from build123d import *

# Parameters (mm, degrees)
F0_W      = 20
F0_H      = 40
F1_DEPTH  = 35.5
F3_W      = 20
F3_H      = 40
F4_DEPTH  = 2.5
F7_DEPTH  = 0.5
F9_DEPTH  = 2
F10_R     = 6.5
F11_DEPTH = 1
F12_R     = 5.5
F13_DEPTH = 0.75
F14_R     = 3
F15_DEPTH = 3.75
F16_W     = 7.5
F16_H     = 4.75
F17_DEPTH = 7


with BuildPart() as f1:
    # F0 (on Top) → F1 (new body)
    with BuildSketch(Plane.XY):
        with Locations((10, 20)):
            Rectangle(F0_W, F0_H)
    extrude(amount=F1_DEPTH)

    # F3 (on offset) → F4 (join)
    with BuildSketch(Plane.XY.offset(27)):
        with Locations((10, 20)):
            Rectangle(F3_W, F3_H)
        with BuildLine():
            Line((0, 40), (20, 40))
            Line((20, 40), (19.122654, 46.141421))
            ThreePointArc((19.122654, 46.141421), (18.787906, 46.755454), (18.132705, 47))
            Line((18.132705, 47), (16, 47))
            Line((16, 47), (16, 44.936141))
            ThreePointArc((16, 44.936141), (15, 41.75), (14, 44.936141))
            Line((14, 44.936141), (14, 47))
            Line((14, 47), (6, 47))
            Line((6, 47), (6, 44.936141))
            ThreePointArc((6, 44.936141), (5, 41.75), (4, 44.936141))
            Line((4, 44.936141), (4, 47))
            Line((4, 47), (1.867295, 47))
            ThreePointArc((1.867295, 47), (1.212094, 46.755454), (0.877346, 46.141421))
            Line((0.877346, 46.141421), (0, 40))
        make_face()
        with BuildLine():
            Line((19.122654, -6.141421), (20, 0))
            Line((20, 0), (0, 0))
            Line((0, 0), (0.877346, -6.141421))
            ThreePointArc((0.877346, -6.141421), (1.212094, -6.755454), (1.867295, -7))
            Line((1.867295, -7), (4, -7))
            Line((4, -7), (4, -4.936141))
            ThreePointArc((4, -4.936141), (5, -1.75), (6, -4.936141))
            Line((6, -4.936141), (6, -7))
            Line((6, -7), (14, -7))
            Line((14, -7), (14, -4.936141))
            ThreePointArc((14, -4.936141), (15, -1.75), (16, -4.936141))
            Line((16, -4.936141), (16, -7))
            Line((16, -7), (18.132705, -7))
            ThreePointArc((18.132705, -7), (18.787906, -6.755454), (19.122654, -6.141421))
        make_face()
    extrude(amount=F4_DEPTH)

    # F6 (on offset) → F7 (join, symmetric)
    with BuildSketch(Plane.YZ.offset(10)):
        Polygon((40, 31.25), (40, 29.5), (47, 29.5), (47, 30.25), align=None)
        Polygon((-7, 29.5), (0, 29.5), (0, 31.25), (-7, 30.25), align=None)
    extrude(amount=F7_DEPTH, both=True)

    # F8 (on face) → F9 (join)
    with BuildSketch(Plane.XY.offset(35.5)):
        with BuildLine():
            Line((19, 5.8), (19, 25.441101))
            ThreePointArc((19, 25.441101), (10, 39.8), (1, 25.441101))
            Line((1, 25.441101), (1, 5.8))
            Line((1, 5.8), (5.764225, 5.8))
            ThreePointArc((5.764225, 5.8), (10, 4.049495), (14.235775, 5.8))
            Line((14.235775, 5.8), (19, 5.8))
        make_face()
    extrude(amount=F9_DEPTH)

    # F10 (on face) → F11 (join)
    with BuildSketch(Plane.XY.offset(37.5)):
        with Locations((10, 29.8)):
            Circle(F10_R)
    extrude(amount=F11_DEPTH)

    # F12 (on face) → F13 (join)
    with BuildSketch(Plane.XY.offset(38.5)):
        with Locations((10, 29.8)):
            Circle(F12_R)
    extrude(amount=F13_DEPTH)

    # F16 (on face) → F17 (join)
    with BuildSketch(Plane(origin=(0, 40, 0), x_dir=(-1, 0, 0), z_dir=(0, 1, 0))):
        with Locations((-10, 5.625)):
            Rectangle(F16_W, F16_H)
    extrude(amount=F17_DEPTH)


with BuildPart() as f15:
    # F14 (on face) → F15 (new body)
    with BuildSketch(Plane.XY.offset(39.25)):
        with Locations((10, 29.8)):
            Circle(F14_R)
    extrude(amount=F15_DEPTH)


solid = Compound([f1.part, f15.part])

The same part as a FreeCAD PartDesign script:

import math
import FreeCAD as App
import Part
import Sketcher
from FreeCAD import Vector
Q = App.Units.Quantity

doc = App.newDocument("Part")
body = doc.addObject("PartDesign::Body", "Body")

sketch1 = doc.addObject("Sketcher::SketchObject", "Sketch")
body.addObject(sketch1)
sketch1.AttachmentSupport = (doc.XY_Plane, [""])
sketch1.MapMode = "FlatFace"
sketch1.addGeometry([
    Part.LineSegment(Vector(0, 40, 0), Vector(0, 0, 0)),
    Part.LineSegment(Vector(0, 0, 0), Vector(20, 0, 0)),
    Part.LineSegment(Vector(20, 0, 0), Vector(20, 40, 0)),
    Part.LineSegment(Vector(20, 40, 0), Vector(0, 40, 0)),
], False)
sketch1.addConstraint([
    Sketcher.Constraint("Coincident", 0, 2, 1, 1),
    Sketcher.Constraint("Coincident", 1, 2, 2, 1),
    Sketcher.Constraint("Coincident", 2, 2, 3, 1),
    Sketcher.Constraint("Coincident", 3, 2, 0, 1),
    Sketcher.Constraint("Vertical", 0),
    Sketcher.Constraint("Horizontal", 1),
    Sketcher.Constraint("Vertical", 2),
    Sketcher.Constraint("Horizontal", 3),
    Sketcher.Constraint("Coincident", 0, 2, -1, 1),
    Sketcher.Constraint("DistanceX", 1, 1, 1, 2, Q("20 mm")),
    Sketcher.Constraint("DistanceY", 0, 2, 0, 1, Q("40 mm")),
])
pad1 = doc.addObject("PartDesign::Pad", "Pad")
body.addObject(pad1)
pad1.Profile = sketch1
pad1.Length = 35.5

sketch2 = doc.addObject("Sketcher::SketchObject", "Sketch001")
body.addObject(sketch2)
sketch2.AttachmentSupport = (doc.XY_Plane, [""])
sketch2.MapMode = "FlatFace"
sketch2.AttachmentOffset = App.Placement(Vector(0, 0, 27), App.Rotation())
sketch2.addGeometry([
    Part.LineSegment(Vector(0, 40, 0), Vector(0, 0, 0)),
    Part.LineSegment(Vector(0, 0, 0), Vector(0.9, -6.1, 0)),
    Part.ArcOfCircle(Part.Circle(Vector(1.9, -6, 0), Vector(0, 0, 1), 1), math.radians(-172), math.radians(-90)),
    Part.LineSegment(Vector(1.9, -7, 0), Vector(4, -7, 0)),
    Part.LineSegment(Vector(4, -7, 0), Vector(4, -4.9, 0)),
    Part.ArcOfCircle(Part.Circle(Vector(5, -3.5, 0), Vector(0, 0, 1), 1.8), math.radians(-55), math.radians(235)),
    Part.LineSegment(Vector(6, -4.9, 0), Vector(6, -7, 0)),
    Part.LineSegment(Vector(6, -7, 0), Vector(14, -7, 0)),
    Part.LineSegment(Vector(14, -7, 0), Vector(14, -4.9, 0)),
    Part.ArcOfCircle(Part.Circle(Vector(15, -3.5, 0), Vector(0, 0, 1), 1.8), math.radians(-55), math.radians(235)),
    Part.LineSegment(Vector(16, -4.9, 0), Vector(16, -7, 0)),
    Part.LineSegment(Vector(16, -7, 0), Vector(18.1, -7, 0)),
    Part.ArcOfCircle(Part.Circle(Vector(18.1, -6, 0), Vector(0, 0, 1), 1), math.radians(-90), math.radians(-8)),
    Part.LineSegment(Vector(19.1, -6.1, 0), Vector(20, 0, 0)),
    Part.LineSegment(Vector(20, 0, 0), Vector(20, 40, 0)),
    Part.LineSegment(Vector(20, 40, 0), Vector(19.1, 46.1, 0)),
    Part.ArcOfCircle(Part.Circle(Vector(18.1, 46, 0), Vector(0, 0, 1), 1), math.radians(8), math.radians(90)),
    Part.LineSegment(Vector(18.1, 47, 0), Vector(16, 47, 0)),
    Part.LineSegment(Vector(16, 47, 0), Vector(16, 44.9, 0)),
    Part.ArcOfCircle(Part.Circle(Vector(15, 43.5, 0), Vector(0, 0, 1), 1.8), math.radians(125), math.radians(415)),
    Part.LineSegment(Vector(14, 44.9, 0), Vector(14, 47, 0)),
    Part.LineSegment(Vector(14, 47, 0), Vector(6, 47, 0)),
    Part.LineSegment(Vector(6, 47, 0), Vector(6, 44.9, 0)),
    Part.ArcOfCircle(Part.Circle(Vector(5, 43.5, 0), Vector(0, 0, 1), 1.8), math.radians(125), math.radians(415)),
    Part.LineSegment(Vector(4, 44.9, 0), Vector(4, 47, 0)),
    Part.LineSegment(Vector(4, 47, 0), Vector(1.9, 47, 0)),
    Part.ArcOfCircle(Part.Circle(Vector(1.9, 46, 0), Vector(0, 0, 1), 1), math.radians(90), math.radians(172)),
    Part.LineSegment(Vector(0.9, 46.1, 0), Vector(0, 40, 0)),
], False)
sketch2.addConstraint([
    Sketcher.Constraint("Coincident", 0, 2, 1, 1),
    Sketcher.Constraint("Tangent", 1, 2, 2, 1),
    Sketcher.Constraint("Tangent", 2, 2, 3, 1),
    Sketcher.Constraint("Coincident", 3, 2, 4, 1),
    Sketcher.Constraint("Coincident", 4, 2, 5, 2),
    Sketcher.Constraint("Coincident", 5, 1, 6, 1),
    Sketcher.Constraint("Coincident", 6, 2, 7, 1),
    Sketcher.Constraint("Coincident", 7, 2, 8, 1),
    Sketcher.Constraint("Coincident", 8, 2, 9, 2),
    Sketcher.Constraint("Coincident", 9, 1, 10, 1),
    Sketcher.Constraint("Coincident", 10, 2, 11, 1),
    Sketcher.Constraint("Tangent", 11, 2, 12, 1),
    Sketcher.Constraint("Tangent", 12, 2, 13, 1),
    Sketcher.Constraint("Coincident", 13, 2, 14, 1),
    Sketcher.Constraint("Coincident", 14, 2, 15, 1),
    Sketcher.Constraint("Tangent", 15, 2, 16, 1),
    Sketcher.Constraint("Tangent", 16, 2, 17, 1),
    Sketcher.Constraint("Coincident", 17, 2, 18, 1),
    Sketcher.Constraint("Coincident", 18, 2, 19, 2),
    Sketcher.Constraint("Coincident", 19, 1, 20, 1),
    Sketcher.Constraint("Coincident", 20, 2, 21, 1),
    Sketcher.Constraint("Coincident", 21, 2, 22, 1),
    Sketcher.Constraint("Coincident", 22, 2, 23, 2),
    Sketcher.Constraint("Coincident", 23, 1, 24, 1),
    Sketcher.Constraint("Coincident", 24, 2, 25, 1),
    Sketcher.Constraint("Tangent", 25, 2, 26, 1),
    Sketcher.Constraint("Tangent", 26, 2, 27, 1),
    Sketcher.Constraint("Coincident", 27, 2, 0, 1),
    Sketcher.Constraint("Vertical", 0),
    Sketcher.Constraint("Horizontal", 3),
    Sketcher.Constraint("Vertical", 4),
    Sketcher.Constraint("Vertical", 6),
    Sketcher.Constraint("Horizontal", 7),
    Sketcher.Constraint("Vertical", 8),
    Sketcher.Constraint("Vertical", 10),
    Sketcher.Constraint("Horizontal", 11),
    Sketcher.Constraint("Vertical", 14),
    Sketcher.Constraint("Horizontal", 17),
    Sketcher.Constraint("Vertical", 18),
    Sketcher.Constraint("Vertical", 20),
    Sketcher.Constraint("Horizontal", 21),
    Sketcher.Constraint("Vertical", 22),
    Sketcher.Constraint("Vertical", 24),
    Sketcher.Constraint("Horizontal", 25),
    Sketcher.Constraint("Coincident", 0, 2, -1, 1),
    Sketcher.Constraint("Equal", 5, 9),
    Sketcher.Constraint("Equal", 2, 12),
    Sketcher.Constraint("Equal", 12, 16),
    Sketcher.Constraint("Equal", 9, 19),
    Sketcher.Constraint("Equal", 19, 23),
    Sketcher.Constraint("Equal", 16, 26),
    Sketcher.Constraint("PointOnObject", 13, 2, -1),
    Sketcher.Constraint("Parallel", 1, 15),
    Sketcher.Constraint("Parallel", 13, 27),
    Sketcher.Constraint("Horizontal", 5, 3, 9, 3),
    Sketcher.Constraint("Horizontal", 2, 3, 12, 3),
    Sketcher.Constraint("Horizontal", 19, 3, 23, 3),
    Sketcher.Constraint("Horizontal", 16, 3, 26, 3),
    Sketcher.Constraint("Horizontal", 4, 2, 5, 1),
    Sketcher.Constraint("Horizontal", 3, 2, 6, 2),
    Sketcher.Constraint("Horizontal", 5, 1, 8, 2),
    Sketcher.Constraint("Horizontal", 8, 2, 9, 1),
    Sketcher.Constraint("Horizontal", 1, 2, 12, 2),
    Sketcher.Constraint("Horizontal", 18, 2, 19, 1),
    Sketcher.Constraint("Horizontal", 17, 2, 20, 2),
    Sketcher.Constraint("Horizontal", 19, 1, 22, 2),
    Sketcher.Constraint("Horizontal", 22, 2, 23, 1),
    Sketcher.Constraint("Horizontal", 14, 2, 27, 2),
    Sketcher.Constraint("Vertical", 12, 3, 16, 3),
    Sketcher.Constraint("Vertical", 9, 3, 19, 3),
    Sketcher.Constraint("Vertical", 5, 3, 23, 3),
    Sketcher.Constraint("Vertical", 10, 2, 17, 2),
    Sketcher.Constraint("Equal", 3, 11),
    Sketcher.Constraint("Equal", 10, 18),
    Sketcher.Constraint("Radius", 2, Q("1 mm")),
    Sketcher.Constraint("DistanceX", 7, 1, 7, 2, Q("8 mm")),
    Sketcher.Constraint("DistanceY", 0, 2, 0, 1, Q("40 mm")),
    Sketcher.Constraint("Radius", 5, Q("1.75 mm")),
    Sketcher.Constraint("DistanceY", 2, 3, -1, 1, Q("6 mm")),
    Sketcher.Constraint("DistanceX", -1, 1, 5, 3, Q("5 mm")),
    Sketcher.Constraint("DistanceX", -1, 1, 9, 3, Q("15 mm")),
    Sketcher.Constraint("DistanceY", 9, 3, 19, 3, Q("47 mm")),
    Sketcher.Constraint("DistanceX", 3, 1, 3, 2, Q("2.132705 mm")),
])
pad2 = doc.addObject("PartDesign::Pad", "Pad001")
body.addObject(pad2)
pad2.Profile = sketch2
pad2.Length = 2.5

sketch3 = doc.addObject("Sketcher::SketchObject", "Sketch002")
body.addObject(sketch3)
sketch3.AttachmentSupport = (doc.YZ_Plane, [""])
sketch3.MapMode = "FlatFace"
sketch3.AttachmentOffset = App.Placement(Vector(0, 0, 10), App.Rotation())
sketch3.addGeometry([
    Part.LineSegment(Vector(40, 31.2, 0), Vector(40, 29.5, 0)),
    Part.LineSegment(Vector(40, 29.5, 0), Vector(47, 29.5, 0)),
    Part.LineSegment(Vector(47, 29.5, 0), Vector(47, 30.2, 0)),
    Part.LineSegment(Vector(47, 30.2, 0), Vector(40, 31.2, 0)),
    Part.LineSegment(Vector(-7, 29.5, 0), Vector(0, 29.5, 0)),
    Part.LineSegment(Vector(0, 29.5, 0), Vector(0, 31.2, 0)),
    Part.LineSegment(Vector(0, 31.2, 0), Vector(-7, 30.2, 0)),
    Part.LineSegment(Vector(-7, 30.2, 0), Vector(-7, 29.5, 0)),
], False)
sketch3.addConstraint([
    Sketcher.Constraint("Coincident", 0, 2, 1, 1),
    Sketcher.Constraint("Coincident", 1, 2, 2, 1),
    Sketcher.Constraint("Coincident", 2, 2, 3, 1),
    Sketcher.Constraint("Coincident", 3, 2, 0, 1),
    Sketcher.Constraint("Coincident", 4, 2, 5, 1),
    Sketcher.Constraint("Coincident", 5, 2, 6, 1),
    Sketcher.Constraint("Coincident", 6, 2, 7, 1),
    Sketcher.Constraint("Coincident", 7, 2, 4, 1),
    Sketcher.Constraint("Vertical", 0),
    Sketcher.Constraint("Horizontal", 1),
    Sketcher.Constraint("Vertical", 2),
    Sketcher.Constraint("Horizontal", 4),
    Sketcher.Constraint("Vertical", 5),
    Sketcher.Constraint("Vertical", 7),
    Sketcher.Constraint("PointOnObject", 4, 2, -2),
    Sketcher.Constraint("Horizontal", 1, 2, 4, 2),
    Sketcher.Constraint("Horizontal", 3, 2, 5, 2),
    Sketcher.Constraint("Horizontal", 2, 2, 6, 2),
    Sketcher.Constraint("Equal", 1, 4),
    Sketcher.Constraint("DistanceX", 1, 1, 1, 2, Q("7 mm")),
    Sketcher.Constraint("DistanceX", -1, 1, 0, 2, Q("40 mm")),
    Sketcher.Constraint("DistanceY", 2, 2, 3, 2, Q("1 mm")),
    Sketcher.Constraint("DistanceY", 0, 2, 0, 1, Q("1.75 mm")),
    Sketcher.Constraint("DistanceY", -1, 1, 0, 2, Q("29.5 mm")),
])
pad3 = doc.addObject("PartDesign::Pad", "Pad002")
body.addObject(pad3)
pad3.Profile = sketch3
pad3.Length = 1
pad3.Midplane = True

sketch4 = doc.addObject("Sketcher::SketchObject", "Sketch003")
body.addObject(sketch4)
sketch4.AttachmentSupport = (doc.XY_Plane, [""])
sketch4.MapMode = "FlatFace"
sketch4.AttachmentOffset = App.Placement(Vector(0, 0, 35.5), App.Rotation())
sketch4.addGeometry([
    Part.LineSegment(Vector(19, 5.8, 0), Vector(19, 25.4, 0)),
    Part.ArcOfCircle(Part.Circle(Vector(10, 29.8, 0), Vector(0, 0, 1), 10), math.radians(-26), math.radians(206)),
    Part.LineSegment(Vector(1, 25.4, 0), Vector(1, 5.8, 0)),
    Part.LineSegment(Vector(1, 5.8, 0), Vector(5.8, 5.8, 0)),
    Part.ArcOfCircle(Part.Circle(Vector(10, 10, 0), Vector(0, 0, 1), 6), math.radians(-135), math.radians(-45)),
    Part.LineSegment(Vector(14.2, 5.8, 0), Vector(19, 5.8, 0)),
], False)
sketch4.addConstraint([
    Sketcher.Constraint("Coincident", 0, 2, 1, 1),
    Sketcher.Constraint("Coincident", 1, 2, 2, 1),
    Sketcher.Constraint("Coincident", 2, 2, 3, 1),
    Sketcher.Constraint("Coincident", 3, 2, 4, 1),
    Sketcher.Constraint("Coincident", 4, 2, 5, 1),
    Sketcher.Constraint("Coincident", 5, 2, 0, 1),
    Sketcher.Constraint("Vertical", 0),
    Sketcher.Constraint("Vertical", 2),
    Sketcher.Constraint("Horizontal", 3),
    Sketcher.Constraint("Horizontal", 5),
    Sketcher.Constraint("Horizontal", 0, 2, 1, 2),
    Sketcher.Constraint("Horizontal", 3, 2, 4, 2),
    Sketcher.Constraint("Vertical", 1, 3, 4, 3),
    Sketcher.Constraint("Radius", 1, Q("10 mm")),
    Sketcher.Constraint("Radius", 4, Q("5.999999 mm")),
    Sketcher.Constraint("DistanceX", -1, 1, 1, 3, Q("10 mm")),
    Sketcher.Constraint("DistanceX", -1, 1, 0, 2, Q("19 mm")),
    Sketcher.Constraint("DistanceY", 2, 2, 1, 3, Q("24 mm")),
    Sketcher.Constraint("DistanceY", -1, 1, 1, 3, Q("29.8 mm")),
    Sketcher.Constraint("DistanceX", 3, 1, 3, 2, Q("4.764225 mm")),
])
pad4 = doc.addObject("PartDesign::Pad", "Pad003")
body.addObject(pad4)
pad4.Profile = sketch4
pad4.Length = 2

sketch5 = doc.addObject("Sketcher::SketchObject", "Sketch004")
body.addObject(sketch5)
sketch5.AttachmentSupport = (doc.XY_Plane, [""])
sketch5.MapMode = "FlatFace"
sketch5.AttachmentOffset = App.Placement(Vector(0, 0, 37.5), App.Rotation())
sketch5.addGeometry(Part.Circle(Vector(10, 30, 0), Vector(0, 0, 1), 6), False)
sketch5.addConstraint([
    Sketcher.Constraint("Diameter", 0, Q("13 mm")),
    Sketcher.Constraint("DistanceX", -1, 1, 0, 3, Q("10 mm")),
    Sketcher.Constraint("DistanceY", -1, 1, 0, 3, Q("29.8 mm")),
])
pad5 = doc.addObject("PartDesign::Pad", "Pad004")
body.addObject(pad5)
pad5.Profile = sketch5
pad5.Length = 1

sketch6 = doc.addObject("Sketcher::SketchObject", "Sketch005")
body.addObject(sketch6)
sketch6.AttachmentSupport = (doc.XY_Plane, [""])
sketch6.MapMode = "FlatFace"
sketch6.AttachmentOffset = App.Placement(Vector(0, 0, 38.5), App.Rotation())
sketch6.addGeometry(Part.Circle(Vector(10, 30, 0), Vector(0, 0, 1), 6), False)
sketch6.addConstraint([
    Sketcher.Constraint("Diameter", 0, Q("11 mm")),
    Sketcher.Constraint("DistanceX", -1, 1, 0, 3, Q("10 mm")),
    Sketcher.Constraint("DistanceY", -1, 1, 0, 3, Q("29.8 mm")),
])
pad6 = doc.addObject("PartDesign::Pad", "Pad005")
body.addObject(pad6)
pad6.Profile = sketch6
pad6.Length = 0.75

sketch7 = doc.addObject("Sketcher::SketchObject", "Sketch006")
body.addObject(sketch7)
sketch7.AttachmentSupport = (doc.XZ_Plane, [""])
sketch7.MapMode = "FlatFace"
sketch7.AttachmentOffset = App.Placement(Vector(0, 0, -40), App.Rotation())
sketch7.addGeometry([
    Part.LineSegment(Vector(13.8, 8, 0), Vector(13.8, 3.2, 0)),
    Part.LineSegment(Vector(13.8, 3.2, 0), Vector(6.2, 3.2, 0)),
    Part.LineSegment(Vector(6.2, 3.2, 0), Vector(6.2, 8, 0)),
    Part.LineSegment(Vector(6.2, 8, 0), Vector(13.8, 8, 0)),
], False)
sketch7.addConstraint([
    Sketcher.Constraint("Coincident", 0, 2, 1, 1),
    Sketcher.Constraint("Coincident", 1, 2, 2, 1),
    Sketcher.Constraint("Coincident", 2, 2, 3, 1),
    Sketcher.Constraint("Coincident", 3, 2, 0, 1),
    Sketcher.Constraint("Vertical", 0),
    Sketcher.Constraint("Horizontal", 1),
    Sketcher.Constraint("Vertical", 2),
    Sketcher.Constraint("Horizontal", 3),
    Sketcher.Constraint("DistanceX", 1, 2, 1, 1, Q("7.5 mm")),
    Sketcher.Constraint("DistanceY", -1, 1, 2, 2, Q("8 mm")),
    Sketcher.Constraint("DistanceY", 0, 2, 0, 1, Q("4.75 mm")),
    Sketcher.Constraint("DistanceX", -1, 1, 0, 2, Q("13.75 mm")),
])
pad7 = doc.addObject("PartDesign::Pad", "Pad006")
body.addObject(pad7)
pad7.Profile = sketch7
pad7.Length = 7
pad7.Reversed = True
body2 = doc.addObject("PartDesign::Body", "Body001")

sketch8 = doc.addObject("Sketcher::SketchObject", "Sketch007")
body2.addObject(sketch8)
sketch8.AttachmentSupport = (doc.getObject("XY_Plane001"), [""])
sketch8.MapMode = "FlatFace"
sketch8.AttachmentOffset = App.Placement(Vector(0, 0, 39.25), App.Rotation())
sketch8.addGeometry(Part.Circle(Vector(10, 29.8, 0), Vector(0, 0, 1), 3), False)
sketch8.addConstraint([
    Sketcher.Constraint("Diameter", 0, Q("6 mm")),
    Sketcher.Constraint("DistanceX", -1, 1, 0, 3, Q("10 mm")),
    Sketcher.Constraint("DistanceY", -1, 1, 0, 3, Q("29.8 mm")),
])
pad8 = doc.addObject("PartDesign::Pad", "Pad007")
body2.addObject(pad8)
pad8.Profile = sketch8
pad8.Length = 3.75

doc.recompute()
